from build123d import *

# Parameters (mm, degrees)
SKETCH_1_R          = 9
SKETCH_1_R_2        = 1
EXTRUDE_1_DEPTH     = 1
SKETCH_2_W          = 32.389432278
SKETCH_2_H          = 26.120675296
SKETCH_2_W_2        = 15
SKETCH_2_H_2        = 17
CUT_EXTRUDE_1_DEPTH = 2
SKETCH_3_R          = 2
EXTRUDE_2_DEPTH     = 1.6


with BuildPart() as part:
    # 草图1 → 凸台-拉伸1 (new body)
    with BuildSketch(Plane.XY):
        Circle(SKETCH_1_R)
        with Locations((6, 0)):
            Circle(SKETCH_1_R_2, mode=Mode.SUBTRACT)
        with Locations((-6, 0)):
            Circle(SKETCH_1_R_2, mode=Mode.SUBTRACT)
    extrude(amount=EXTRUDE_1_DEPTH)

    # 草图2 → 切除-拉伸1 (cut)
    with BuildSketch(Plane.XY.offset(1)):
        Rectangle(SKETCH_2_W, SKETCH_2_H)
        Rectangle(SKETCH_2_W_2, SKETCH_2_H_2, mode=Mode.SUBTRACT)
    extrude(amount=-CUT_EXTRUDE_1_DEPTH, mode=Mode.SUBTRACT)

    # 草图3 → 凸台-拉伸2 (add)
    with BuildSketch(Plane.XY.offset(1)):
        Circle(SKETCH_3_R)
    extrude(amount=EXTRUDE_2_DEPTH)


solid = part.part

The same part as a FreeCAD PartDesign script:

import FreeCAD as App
import Part
import Sketcher

V = App.Vector
Q = App.Units.Quantity

doc = App.newDocument("Part")
body = doc.addObject("PartDesign::Body", "Body")

# Sketch on XY plane
sketch1 = doc.addObject("Sketcher::SketchObject", "Sketch")
body.addObject(sketch1)
sketch1.AttachmentSupport = (doc.XY_Plane, [""])
sketch1.MapMode = "FlatFace"
sketch1.addGeometry(Part.Circle(V(0, 0, 0), V(0, 0, 1), 9), False)
sketch1.addGeometry(Part.Circle(V(-6, 0, 0), V(0, 0, 1), 1), False)
sketch1.addGeometry(Part.Circle(V(6, 0, 0), V(0, 0, 1), 1), False)
sketch1.addConstraint(Sketcher.Constraint("Coincident", 0, 3, -1, 1))
sketch1.addConstraint(Sketcher.Constraint("Equal", 1, 2))
sketch1.addConstraint(Sketcher.Constraint("Symmetric", 1, 3, 2, 3, -1, 1))
sketch1.addConstraint(Sketcher.Constraint("PointOnObject", 1, 3, -1))
sketch1.addConstraint(Sketcher.Constraint("Diameter", 0, Q("18 mm")))
sketch1.addConstraint(Sketcher.Constraint("Diameter", 1, Q("2 mm")))
sketch1.addConstraint(Sketcher.Constraint("DistanceX", 1, 3, -1, 1, Q("6 mm")))
pad1 = doc.addObject("PartDesign::Pad", "Pad")
body.addObject(pad1)
pad1.Profile = sketch1
pad1.Length = 1

# Sketch on XY plane
sketch2 = doc.addObject("Sketcher::SketchObject", "Sketch001")
body.addObject(sketch2)
sketch2.AttachmentSupport = (doc.XY_Plane, [""])
sketch2.MapMode = "FlatFace"
sketch2.AttachmentOffset = App.Placement(V(0, 0, 1), App.Rotation())
sketch2.addGeometry(Part.LineSegment(V(-16, 13, 0), V(-16, -13, 0)), False)
sketch2.addGeometry(Part.LineSegment(V(-16, -13, 0), V(16, -13, 0)), False)
sketch2.addGeometry(Part.LineSegment(V(16, -13, 0), V(16, 13, 0)), False)
sketch2.addGeometry(Part.LineSegment(V(16, 13, 0), V(-16, 13, 0)), False)
sketch2.addGeometry(Part.LineSegment(V(8, -8, 0), V(-8, -8, 0)), False)
sketch2.addGeometry(Part.LineSegment(V(-8, -8, 0), V(-8, 8, 0)), False)
sketch2.addGeometry(Part.LineSegment(V(-8, 8, 0), V(8, 8, 0)), False)
sketch2.addGeometry(Part.LineSegment(V(8, 8, 0), V(8, -8, 0)), False)
sketch2.addConstraint(Sketcher.Constraint("Coincident", 0, 2, 1, 1))
sketch2.addConstraint(Sketcher.Constraint("Coincident", 1, 2, 2, 1))
sketch2.addConstraint(Sketcher.Constraint("Coincident", 2, 2, 3, 1))
sketch2.addConstraint(Sketcher.Constraint("Coincident", 3, 2, 0, 1))
sketch2.addConstraint(Sketcher.Constraint("Coincident", 4, 2, 5, 1))
sketch2.addConstraint(Sketcher.Constraint("Coincident", 5, 2, 6, 1))
sketch2.addConstraint(Sketcher.Constraint("Coincident", 6, 2, 7, 1))
sketch2.addConstraint(Sketcher.Constraint("Coincident", 7, 2, 4, 1))
sketch2.addConstraint(Sketcher.Constraint("Vertical", 0))
sketch2.addConstraint(Sketcher.Constraint("Horizontal", 1))
sketch2.addConstraint(Sketcher.Constraint("Vertical", 2))
sketch2.addConstraint(Sketcher.Constraint("Horizontal", 3))
sketch2.addConstraint(Sketcher.Constraint("Horizontal", 4))
sketch2.addConstraint(Sketcher.Constraint("Vertical", 5))
sketch2.addConstraint(Sketcher.Constraint("Horizontal", 6))
sketch2.addConstraint(Sketcher.Constraint("Vertical", 7))
sketch2.addConstraint(Sketcher.Constraint("Symmetric", 0, 2, 2, 2, -1, 1))
sketch2.addConstraint(Sketcher.Constraint("Symmetric", 4, 2, 6, 2, -1, 1))
sketch2.addConstraint(Sketcher.Constraint("DistanceX", 4, 2, 4, 1, Q("15 mm")))
sketch2.addConstraint(Sketcher.Constraint("DistanceY", 5, 1, 5, 2, Q("17 mm")))
sketch2.addConstraint(Sketcher.Constraint("DistanceX", 1, 1, 1, 2, Q("32.389432 mm")))
sketch2.addConstraint(Sketcher.Constraint("DistanceY", 0, 2, 0, 1, Q("26.120675 mm")))
pocket1 = doc.addObject("PartDesign::Pocket", "Pocket")
body.addObject(pocket1)
pocket1.Profile = sketch2
pocket1.Length = 2

# Sketch on XY plane
sketch3 = doc.addObject("Sketcher::SketchObject", "Sketch002")
body.addObject(sketch3)
sketch3.AttachmentSupport = (doc.XY_Plane, [""])
sketch3.MapMode = "FlatFace"
sketch3.AttachmentOffset = App.Placement(V(0, 0, 1), App.Rotation())
sketch3.addGeometry(Part.Circle(V(0, 0, 0), V(0, 0, 1), 2), False)
sketch3.addConstraint(Sketcher.Constraint("Coincident", 0, 3, -1, 1))
sketch3.addConstraint(Sketcher.Constraint("Diameter", 0, Q("4 mm")))
pad2 = doc.addObject("PartDesign::Pad", "Pad001")
body.addObject(pad2)
pad2.Profile = sketch3
pad2.Length = 1.6

doc.recompute()
